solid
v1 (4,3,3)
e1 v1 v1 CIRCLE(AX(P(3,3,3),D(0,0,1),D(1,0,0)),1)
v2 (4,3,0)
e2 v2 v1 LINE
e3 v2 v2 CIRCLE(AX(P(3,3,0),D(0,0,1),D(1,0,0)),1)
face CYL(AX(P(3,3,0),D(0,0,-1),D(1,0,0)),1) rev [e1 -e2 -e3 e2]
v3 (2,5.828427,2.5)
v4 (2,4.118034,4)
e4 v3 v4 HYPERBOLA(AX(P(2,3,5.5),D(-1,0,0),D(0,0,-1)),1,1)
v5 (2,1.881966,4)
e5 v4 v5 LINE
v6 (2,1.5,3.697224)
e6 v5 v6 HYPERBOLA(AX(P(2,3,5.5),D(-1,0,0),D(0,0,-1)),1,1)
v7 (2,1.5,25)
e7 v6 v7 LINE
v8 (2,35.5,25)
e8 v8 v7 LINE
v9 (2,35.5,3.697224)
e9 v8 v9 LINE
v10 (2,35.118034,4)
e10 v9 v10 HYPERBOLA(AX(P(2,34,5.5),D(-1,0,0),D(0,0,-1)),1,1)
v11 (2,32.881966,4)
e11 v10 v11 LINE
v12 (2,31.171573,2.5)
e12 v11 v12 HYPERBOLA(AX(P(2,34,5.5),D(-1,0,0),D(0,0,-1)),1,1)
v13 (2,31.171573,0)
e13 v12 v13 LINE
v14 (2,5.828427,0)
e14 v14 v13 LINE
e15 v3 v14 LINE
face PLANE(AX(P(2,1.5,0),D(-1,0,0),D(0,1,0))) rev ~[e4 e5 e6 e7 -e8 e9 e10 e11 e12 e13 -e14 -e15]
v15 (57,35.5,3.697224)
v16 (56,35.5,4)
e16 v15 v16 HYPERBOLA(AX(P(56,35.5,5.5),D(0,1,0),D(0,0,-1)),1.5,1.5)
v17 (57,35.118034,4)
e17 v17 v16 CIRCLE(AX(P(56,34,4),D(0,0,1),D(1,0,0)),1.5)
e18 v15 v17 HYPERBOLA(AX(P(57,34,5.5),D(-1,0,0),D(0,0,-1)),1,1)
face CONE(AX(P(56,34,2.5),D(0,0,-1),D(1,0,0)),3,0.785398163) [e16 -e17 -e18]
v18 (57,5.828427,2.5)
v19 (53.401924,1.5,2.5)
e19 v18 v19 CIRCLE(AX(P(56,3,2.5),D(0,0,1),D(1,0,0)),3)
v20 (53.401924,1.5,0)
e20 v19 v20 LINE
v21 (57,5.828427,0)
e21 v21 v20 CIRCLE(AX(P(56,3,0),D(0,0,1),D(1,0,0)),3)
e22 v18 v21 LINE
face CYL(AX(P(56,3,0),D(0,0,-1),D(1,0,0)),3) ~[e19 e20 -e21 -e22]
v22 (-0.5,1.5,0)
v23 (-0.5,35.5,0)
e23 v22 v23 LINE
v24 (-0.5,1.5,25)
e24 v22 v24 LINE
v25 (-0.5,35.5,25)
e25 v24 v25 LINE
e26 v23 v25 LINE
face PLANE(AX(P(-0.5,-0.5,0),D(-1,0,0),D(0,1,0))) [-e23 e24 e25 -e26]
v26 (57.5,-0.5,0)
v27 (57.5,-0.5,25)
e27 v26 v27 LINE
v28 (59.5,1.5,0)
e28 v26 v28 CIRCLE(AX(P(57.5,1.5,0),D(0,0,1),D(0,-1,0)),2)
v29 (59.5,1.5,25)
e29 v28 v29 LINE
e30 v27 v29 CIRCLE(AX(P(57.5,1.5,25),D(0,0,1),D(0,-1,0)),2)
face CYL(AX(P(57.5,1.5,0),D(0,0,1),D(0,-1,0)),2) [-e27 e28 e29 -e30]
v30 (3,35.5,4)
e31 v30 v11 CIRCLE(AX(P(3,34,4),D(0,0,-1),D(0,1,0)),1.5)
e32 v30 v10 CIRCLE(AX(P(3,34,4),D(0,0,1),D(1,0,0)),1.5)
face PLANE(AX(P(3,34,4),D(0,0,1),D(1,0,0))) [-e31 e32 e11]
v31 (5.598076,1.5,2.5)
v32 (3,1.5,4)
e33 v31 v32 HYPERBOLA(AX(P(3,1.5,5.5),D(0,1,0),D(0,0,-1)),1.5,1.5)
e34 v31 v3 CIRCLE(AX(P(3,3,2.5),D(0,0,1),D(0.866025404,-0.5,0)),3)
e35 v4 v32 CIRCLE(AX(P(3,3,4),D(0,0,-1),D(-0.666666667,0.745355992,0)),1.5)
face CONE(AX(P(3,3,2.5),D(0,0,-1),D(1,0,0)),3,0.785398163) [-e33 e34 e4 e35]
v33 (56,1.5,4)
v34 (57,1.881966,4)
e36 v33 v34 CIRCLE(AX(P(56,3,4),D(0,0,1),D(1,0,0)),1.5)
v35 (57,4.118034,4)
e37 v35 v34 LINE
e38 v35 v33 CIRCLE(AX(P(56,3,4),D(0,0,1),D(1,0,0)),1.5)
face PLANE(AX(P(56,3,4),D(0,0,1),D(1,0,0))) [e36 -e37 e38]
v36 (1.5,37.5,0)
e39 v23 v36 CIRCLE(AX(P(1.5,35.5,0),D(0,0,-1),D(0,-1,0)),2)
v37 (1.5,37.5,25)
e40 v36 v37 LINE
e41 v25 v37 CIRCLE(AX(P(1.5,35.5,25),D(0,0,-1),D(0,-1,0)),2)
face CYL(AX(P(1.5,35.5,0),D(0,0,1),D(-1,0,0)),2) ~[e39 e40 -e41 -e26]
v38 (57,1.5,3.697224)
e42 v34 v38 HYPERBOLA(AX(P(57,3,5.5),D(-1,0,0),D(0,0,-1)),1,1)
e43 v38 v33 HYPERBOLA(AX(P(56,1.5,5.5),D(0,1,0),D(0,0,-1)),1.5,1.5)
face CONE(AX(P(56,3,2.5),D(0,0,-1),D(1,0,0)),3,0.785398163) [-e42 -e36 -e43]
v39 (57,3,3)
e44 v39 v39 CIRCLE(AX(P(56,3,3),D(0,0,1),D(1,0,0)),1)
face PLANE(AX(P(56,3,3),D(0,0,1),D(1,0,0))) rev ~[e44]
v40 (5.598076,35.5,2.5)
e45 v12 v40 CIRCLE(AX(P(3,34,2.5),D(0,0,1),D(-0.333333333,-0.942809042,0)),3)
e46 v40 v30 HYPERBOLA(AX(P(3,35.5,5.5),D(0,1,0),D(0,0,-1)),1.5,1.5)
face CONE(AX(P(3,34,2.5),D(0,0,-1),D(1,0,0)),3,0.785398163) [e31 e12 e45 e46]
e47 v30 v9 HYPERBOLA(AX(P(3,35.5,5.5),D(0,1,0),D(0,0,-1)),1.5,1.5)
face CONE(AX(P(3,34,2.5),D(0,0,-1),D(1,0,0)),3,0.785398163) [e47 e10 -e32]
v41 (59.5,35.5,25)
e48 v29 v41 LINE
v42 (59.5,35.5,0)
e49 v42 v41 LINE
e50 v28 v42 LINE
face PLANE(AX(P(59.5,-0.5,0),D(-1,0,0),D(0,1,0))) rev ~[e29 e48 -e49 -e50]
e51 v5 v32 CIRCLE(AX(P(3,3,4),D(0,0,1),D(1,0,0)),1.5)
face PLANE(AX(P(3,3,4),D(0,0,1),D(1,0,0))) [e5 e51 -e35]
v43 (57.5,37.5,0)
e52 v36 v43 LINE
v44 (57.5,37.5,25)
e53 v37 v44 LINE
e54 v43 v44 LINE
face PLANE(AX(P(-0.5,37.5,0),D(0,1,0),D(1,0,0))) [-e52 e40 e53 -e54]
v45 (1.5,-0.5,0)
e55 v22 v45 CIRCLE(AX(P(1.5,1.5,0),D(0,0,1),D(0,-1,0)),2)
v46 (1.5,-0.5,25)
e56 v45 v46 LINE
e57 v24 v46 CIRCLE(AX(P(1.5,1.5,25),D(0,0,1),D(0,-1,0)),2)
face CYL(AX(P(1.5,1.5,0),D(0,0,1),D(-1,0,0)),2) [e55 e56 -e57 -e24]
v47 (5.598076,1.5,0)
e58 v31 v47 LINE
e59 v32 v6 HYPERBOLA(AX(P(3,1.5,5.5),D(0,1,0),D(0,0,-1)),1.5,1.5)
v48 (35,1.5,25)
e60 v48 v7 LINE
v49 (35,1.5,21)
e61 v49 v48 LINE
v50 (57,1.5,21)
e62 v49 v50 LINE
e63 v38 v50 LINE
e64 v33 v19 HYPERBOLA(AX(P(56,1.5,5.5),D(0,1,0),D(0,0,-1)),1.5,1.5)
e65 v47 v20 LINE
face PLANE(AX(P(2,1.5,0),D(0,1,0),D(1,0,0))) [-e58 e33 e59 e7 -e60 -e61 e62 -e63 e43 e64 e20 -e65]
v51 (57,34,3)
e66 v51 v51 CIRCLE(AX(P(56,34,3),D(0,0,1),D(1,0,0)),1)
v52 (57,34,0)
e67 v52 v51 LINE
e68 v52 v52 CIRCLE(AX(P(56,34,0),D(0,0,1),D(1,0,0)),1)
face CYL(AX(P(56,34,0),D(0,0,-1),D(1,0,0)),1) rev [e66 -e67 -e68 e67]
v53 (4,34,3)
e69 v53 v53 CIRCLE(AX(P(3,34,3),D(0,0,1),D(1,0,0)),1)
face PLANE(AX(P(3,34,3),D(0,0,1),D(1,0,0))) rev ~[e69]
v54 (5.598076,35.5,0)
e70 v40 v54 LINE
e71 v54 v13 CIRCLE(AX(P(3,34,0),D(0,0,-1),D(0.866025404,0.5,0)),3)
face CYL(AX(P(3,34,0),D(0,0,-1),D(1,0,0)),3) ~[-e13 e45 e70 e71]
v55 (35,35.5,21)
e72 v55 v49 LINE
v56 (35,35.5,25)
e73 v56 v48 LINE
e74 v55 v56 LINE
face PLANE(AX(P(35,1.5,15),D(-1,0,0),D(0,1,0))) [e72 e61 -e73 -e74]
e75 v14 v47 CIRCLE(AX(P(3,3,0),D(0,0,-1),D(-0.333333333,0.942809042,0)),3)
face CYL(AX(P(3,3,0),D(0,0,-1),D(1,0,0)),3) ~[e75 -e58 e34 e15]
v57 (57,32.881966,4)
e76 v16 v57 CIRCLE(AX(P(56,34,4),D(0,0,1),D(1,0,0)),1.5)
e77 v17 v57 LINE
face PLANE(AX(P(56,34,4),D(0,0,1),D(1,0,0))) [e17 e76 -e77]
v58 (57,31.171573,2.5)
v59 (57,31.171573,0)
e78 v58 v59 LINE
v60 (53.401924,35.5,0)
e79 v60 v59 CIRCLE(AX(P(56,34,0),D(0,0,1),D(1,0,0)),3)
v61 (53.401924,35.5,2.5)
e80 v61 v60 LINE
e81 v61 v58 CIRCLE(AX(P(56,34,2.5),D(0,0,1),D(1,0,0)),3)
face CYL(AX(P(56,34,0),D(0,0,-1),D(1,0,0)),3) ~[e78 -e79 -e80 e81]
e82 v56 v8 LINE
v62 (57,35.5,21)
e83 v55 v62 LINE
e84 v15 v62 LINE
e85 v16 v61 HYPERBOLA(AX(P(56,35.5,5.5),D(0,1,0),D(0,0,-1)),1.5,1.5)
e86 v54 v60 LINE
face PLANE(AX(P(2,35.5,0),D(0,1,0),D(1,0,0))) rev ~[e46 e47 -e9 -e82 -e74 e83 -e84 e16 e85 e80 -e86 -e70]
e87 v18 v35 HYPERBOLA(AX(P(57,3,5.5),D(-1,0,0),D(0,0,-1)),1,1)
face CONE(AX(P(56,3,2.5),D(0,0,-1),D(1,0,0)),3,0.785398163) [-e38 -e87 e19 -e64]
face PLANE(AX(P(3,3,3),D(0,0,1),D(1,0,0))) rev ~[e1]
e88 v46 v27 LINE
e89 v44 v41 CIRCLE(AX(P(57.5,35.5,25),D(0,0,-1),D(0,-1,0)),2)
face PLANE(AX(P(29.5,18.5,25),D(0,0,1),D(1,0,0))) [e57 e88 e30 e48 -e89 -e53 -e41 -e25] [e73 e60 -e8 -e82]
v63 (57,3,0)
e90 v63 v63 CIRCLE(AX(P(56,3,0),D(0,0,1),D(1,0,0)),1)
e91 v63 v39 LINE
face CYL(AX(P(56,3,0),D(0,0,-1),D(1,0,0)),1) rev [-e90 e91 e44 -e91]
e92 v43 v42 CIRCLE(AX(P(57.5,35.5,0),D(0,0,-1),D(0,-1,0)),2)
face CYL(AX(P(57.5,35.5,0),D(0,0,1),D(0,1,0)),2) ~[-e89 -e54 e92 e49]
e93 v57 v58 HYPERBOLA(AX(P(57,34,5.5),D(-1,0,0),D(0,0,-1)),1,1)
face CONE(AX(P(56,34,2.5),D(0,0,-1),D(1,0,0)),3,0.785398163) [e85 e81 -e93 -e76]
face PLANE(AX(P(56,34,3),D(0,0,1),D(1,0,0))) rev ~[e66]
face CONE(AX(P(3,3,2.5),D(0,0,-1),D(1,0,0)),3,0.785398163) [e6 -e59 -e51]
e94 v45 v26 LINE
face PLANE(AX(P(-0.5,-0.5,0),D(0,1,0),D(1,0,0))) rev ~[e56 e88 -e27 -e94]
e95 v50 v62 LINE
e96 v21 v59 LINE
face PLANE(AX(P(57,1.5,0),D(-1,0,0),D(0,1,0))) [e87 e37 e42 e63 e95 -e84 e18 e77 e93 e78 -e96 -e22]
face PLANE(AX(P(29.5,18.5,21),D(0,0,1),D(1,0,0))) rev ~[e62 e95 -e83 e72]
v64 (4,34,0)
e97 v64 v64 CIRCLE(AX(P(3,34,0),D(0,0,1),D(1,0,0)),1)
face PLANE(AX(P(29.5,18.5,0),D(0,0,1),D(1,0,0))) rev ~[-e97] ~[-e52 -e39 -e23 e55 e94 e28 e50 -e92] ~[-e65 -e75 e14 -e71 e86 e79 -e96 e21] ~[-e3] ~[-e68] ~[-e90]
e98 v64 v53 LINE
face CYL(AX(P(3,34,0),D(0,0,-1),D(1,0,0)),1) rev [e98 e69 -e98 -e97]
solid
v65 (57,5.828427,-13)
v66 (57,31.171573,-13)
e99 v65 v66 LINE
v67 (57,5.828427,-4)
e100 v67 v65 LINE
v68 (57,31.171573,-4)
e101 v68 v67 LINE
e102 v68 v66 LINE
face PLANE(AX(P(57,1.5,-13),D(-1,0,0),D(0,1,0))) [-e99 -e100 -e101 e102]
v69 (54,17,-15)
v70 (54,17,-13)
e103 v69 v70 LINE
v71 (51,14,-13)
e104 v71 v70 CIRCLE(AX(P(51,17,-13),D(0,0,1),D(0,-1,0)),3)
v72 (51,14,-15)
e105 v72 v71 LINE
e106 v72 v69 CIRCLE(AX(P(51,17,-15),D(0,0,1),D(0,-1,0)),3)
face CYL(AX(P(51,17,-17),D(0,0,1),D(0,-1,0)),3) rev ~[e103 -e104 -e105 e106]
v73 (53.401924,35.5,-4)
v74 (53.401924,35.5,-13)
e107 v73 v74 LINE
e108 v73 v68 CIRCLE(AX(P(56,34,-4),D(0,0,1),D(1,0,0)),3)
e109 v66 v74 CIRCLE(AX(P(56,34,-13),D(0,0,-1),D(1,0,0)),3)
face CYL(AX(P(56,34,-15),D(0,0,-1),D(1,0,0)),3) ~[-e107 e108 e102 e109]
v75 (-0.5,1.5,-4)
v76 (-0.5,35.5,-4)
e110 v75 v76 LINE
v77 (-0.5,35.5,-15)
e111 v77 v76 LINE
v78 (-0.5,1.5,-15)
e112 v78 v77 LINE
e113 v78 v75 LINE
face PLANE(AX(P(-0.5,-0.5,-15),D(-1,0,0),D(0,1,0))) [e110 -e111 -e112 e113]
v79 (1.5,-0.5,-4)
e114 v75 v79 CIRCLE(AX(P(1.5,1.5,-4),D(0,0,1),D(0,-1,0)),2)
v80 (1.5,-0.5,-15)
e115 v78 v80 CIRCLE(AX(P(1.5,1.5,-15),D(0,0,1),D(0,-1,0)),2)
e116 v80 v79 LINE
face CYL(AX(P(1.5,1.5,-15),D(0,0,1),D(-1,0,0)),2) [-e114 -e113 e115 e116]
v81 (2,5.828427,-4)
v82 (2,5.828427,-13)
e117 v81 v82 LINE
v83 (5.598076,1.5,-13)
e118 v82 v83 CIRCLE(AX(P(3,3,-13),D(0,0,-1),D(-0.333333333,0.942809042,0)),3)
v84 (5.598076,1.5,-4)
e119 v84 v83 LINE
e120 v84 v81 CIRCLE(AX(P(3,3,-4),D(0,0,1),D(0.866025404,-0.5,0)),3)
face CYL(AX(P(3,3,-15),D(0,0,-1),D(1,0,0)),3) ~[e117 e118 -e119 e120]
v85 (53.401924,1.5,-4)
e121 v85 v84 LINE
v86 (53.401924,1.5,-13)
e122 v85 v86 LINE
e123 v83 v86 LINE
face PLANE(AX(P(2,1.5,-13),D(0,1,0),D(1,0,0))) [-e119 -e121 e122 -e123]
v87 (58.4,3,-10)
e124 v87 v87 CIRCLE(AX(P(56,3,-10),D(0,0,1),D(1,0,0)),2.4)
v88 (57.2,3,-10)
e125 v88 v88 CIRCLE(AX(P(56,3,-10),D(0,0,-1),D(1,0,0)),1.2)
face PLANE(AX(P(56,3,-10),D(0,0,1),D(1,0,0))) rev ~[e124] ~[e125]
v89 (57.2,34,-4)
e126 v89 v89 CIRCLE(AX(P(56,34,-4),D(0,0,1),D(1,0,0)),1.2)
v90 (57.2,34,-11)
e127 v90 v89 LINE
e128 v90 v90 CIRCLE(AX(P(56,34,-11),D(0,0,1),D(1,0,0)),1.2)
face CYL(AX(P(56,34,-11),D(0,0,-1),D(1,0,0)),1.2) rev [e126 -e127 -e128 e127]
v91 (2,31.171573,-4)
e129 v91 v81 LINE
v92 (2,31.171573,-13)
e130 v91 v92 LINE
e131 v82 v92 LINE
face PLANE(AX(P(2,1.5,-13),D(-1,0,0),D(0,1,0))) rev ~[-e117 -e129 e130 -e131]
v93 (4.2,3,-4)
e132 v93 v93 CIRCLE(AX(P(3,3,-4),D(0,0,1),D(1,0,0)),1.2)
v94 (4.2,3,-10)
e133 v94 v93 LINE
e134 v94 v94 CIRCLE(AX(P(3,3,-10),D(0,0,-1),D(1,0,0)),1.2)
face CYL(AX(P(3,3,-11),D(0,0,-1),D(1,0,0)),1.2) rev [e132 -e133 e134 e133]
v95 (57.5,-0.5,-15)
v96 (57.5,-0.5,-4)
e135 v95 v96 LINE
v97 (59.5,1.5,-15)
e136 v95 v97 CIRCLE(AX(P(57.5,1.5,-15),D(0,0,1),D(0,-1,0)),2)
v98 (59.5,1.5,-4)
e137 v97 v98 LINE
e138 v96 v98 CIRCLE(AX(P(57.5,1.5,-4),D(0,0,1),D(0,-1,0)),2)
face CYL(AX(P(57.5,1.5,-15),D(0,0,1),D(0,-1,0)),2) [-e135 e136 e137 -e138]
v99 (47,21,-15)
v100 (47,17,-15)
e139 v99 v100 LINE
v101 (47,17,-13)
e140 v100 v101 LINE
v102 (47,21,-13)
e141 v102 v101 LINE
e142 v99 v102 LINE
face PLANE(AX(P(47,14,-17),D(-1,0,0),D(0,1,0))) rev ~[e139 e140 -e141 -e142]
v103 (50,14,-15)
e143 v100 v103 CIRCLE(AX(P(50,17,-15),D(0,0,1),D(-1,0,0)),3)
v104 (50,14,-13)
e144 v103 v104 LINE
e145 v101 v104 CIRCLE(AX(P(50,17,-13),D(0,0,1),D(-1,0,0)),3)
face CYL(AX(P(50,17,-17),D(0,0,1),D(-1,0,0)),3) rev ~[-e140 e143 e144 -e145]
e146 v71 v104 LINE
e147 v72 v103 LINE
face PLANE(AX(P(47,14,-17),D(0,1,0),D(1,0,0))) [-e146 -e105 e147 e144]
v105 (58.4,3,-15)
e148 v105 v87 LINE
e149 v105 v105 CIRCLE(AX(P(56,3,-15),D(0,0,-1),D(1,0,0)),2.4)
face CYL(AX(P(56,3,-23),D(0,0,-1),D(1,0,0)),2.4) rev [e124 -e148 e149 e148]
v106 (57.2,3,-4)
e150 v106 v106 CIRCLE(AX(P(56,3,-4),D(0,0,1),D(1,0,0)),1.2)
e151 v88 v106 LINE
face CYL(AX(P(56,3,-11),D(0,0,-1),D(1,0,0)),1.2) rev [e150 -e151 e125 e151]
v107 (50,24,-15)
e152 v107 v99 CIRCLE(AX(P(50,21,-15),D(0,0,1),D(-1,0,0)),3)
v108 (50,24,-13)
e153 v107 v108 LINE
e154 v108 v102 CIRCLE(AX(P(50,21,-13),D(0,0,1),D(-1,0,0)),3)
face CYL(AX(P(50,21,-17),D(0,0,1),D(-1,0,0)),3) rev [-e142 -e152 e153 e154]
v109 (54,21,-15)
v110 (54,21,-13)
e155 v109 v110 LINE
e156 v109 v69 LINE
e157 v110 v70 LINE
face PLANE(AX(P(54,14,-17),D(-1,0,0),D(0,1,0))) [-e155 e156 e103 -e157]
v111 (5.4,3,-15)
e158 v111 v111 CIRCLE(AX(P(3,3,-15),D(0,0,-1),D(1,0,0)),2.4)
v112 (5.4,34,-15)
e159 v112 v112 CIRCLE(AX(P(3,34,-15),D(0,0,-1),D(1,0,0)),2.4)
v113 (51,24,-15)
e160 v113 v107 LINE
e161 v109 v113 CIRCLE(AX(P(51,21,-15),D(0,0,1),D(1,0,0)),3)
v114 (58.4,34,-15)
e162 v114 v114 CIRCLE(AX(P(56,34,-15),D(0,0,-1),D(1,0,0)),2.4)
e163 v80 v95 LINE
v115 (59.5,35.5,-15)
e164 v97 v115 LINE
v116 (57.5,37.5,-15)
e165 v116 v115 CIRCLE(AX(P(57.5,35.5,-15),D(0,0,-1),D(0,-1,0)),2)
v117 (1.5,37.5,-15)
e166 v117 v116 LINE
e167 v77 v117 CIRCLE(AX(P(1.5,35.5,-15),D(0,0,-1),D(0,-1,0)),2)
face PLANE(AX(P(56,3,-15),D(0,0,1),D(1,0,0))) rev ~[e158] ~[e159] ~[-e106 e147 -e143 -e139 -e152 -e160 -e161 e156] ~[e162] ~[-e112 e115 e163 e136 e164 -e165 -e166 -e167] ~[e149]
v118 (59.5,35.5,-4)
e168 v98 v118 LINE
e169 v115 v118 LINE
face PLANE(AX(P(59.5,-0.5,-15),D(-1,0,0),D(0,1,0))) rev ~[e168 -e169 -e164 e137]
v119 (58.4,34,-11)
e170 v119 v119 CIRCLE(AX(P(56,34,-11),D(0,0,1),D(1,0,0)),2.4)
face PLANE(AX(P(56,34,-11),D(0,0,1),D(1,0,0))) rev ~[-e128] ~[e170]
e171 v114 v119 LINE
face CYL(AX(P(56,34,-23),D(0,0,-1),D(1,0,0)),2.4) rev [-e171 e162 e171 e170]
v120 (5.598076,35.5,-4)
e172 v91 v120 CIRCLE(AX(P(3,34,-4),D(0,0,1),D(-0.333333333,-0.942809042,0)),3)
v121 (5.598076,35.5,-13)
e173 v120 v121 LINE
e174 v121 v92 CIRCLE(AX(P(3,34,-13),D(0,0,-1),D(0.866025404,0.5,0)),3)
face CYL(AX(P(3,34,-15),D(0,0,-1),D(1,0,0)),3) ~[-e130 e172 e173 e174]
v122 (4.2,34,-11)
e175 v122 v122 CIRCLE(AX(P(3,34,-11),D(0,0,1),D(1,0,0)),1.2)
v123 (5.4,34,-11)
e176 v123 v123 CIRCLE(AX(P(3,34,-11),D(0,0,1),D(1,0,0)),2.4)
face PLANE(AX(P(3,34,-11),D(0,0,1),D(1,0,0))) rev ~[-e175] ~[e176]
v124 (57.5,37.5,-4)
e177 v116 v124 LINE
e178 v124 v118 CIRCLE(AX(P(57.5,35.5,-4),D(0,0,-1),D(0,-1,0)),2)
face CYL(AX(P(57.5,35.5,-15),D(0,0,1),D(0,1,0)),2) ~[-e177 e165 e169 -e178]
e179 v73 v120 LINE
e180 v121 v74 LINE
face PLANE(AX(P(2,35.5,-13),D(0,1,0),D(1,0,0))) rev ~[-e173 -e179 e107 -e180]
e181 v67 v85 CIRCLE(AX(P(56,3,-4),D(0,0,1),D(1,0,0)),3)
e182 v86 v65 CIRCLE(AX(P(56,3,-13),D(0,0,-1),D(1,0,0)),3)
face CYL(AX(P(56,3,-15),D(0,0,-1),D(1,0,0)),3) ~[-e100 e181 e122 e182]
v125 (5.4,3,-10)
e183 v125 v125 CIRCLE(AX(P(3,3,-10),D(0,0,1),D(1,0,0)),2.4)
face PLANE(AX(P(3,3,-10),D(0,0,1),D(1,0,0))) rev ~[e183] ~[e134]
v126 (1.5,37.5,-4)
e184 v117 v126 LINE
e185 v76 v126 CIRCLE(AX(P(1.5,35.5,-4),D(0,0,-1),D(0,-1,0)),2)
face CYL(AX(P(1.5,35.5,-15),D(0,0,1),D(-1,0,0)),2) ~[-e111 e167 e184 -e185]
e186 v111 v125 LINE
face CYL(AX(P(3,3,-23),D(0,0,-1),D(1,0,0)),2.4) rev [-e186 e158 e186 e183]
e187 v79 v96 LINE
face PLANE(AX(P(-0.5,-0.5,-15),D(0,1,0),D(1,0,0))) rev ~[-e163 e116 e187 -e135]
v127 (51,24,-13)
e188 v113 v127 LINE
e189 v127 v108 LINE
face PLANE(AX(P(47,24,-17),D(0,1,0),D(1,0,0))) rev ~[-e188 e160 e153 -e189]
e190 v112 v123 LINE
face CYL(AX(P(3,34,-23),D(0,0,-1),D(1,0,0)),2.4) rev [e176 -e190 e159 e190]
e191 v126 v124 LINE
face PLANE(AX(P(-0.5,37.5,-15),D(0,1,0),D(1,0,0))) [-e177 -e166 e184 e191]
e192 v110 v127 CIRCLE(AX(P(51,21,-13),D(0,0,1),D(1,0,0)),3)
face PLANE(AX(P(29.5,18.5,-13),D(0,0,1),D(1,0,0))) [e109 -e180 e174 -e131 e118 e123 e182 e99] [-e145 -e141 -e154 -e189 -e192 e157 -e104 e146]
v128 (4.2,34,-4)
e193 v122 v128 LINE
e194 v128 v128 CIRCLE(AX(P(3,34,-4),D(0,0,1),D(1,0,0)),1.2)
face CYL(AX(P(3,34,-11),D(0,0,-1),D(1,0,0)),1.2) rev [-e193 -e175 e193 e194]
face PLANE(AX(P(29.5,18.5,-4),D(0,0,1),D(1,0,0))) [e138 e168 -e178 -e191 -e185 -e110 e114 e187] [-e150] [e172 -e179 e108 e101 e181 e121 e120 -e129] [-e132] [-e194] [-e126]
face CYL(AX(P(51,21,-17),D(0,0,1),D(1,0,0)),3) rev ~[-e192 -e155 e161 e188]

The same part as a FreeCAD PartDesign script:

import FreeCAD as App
import Part
import Sketcher

V = App.Vector


def edges_at(feature, points):
    """Names of the edges that pass closest to the given points."""
    edges = feature.Shape.Edges
    near = lambda p: min(range(len(edges)), key=lambda i: edges[i].distToShape(Part.Vertex(*p))[0])
    return sorted({f"Edge{near(p) + 1}" for p in points})

doc = App.newDocument("Part")
body = doc.addObject("PartDesign::Body", "Body")

# Sketch on XY plane
sketch1 = body.newObject("Sketcher::SketchObject", "Sketch")
sketch1.AttachmentSupport = (doc.getObject("XY_Plane"), [""])
sketch1.MapMode = "FlatFace"
sketch1.AttachmentOffset = App.Placement(V(0, 0, -17), App.Rotation())
sketch1.addGeometry(Part.LineSegment(V(45, 20, 0), V(45, 10, 0)), False)
sketch1.addGeometry(Part.LineSegment(V(45, 10, 0), V(52, 10, 0)), False)
sketch1.addGeometry(Part.LineSegment(V(52, 10, 0), V(52, 20, 0)), False)
sketch1.addGeometry(Part.LineSegment(V(52, 20, 0), V(45, 20, 0)), False)
sketch1.addConstraint(Sketcher.Constraint("Coincident", 0, 2, 1, 1))
sketch1.addConstraint(Sketcher.Constraint("Coincident", 1, 2, 2, 1))
sketch1.addConstraint(Sketcher.Constraint("Coincident", 2, 2, 3, 1))
sketch1.addConstraint(Sketcher.Constraint("Coincident", 3, 2, 0, 1))
sketch1.addConstraint(Sketcher.Constraint("Vertical", 0))
sketch1.addConstraint(Sketcher.Constraint("Horizontal", 1))
sketch1.addConstraint(Sketcher.Constraint("Vertical", 2))
sketch1.addConstraint(Sketcher.Constraint("Horizontal", 3))
sketch1.addConstraint(Sketcher.Constraint("DistanceX", 1, 1, 1, 2, 7.0))
sketch1.addConstraint(Sketcher.Constraint("DistanceY", 0, 2, 0, 1, 10.0))
sketch1.addConstraint(Sketcher.Constraint("DistanceX", -1, 1, 0, 2, 45.0))
sketch1.addConstraint(Sketcher.Constraint("DistanceY", -1, 1, 0, 2, 10.0))
pad1 = body.newObject("PartDesign::Pad", "Pad")
pad1.Profile = sketch1
pad1.Length = 6
doc.recompute()

fillet = body.newObject("PartDesign::Fillet", "Fillet")
fillet.Base = (pad1, edges_at(pad1, [
    (45, 10, -14),
    (45, 20, -14),
    (52, 10, -14),
    (52, 20, -14),
]))
fillet.Radius = 3
body2 = doc.addObject("PartDesign::Body", "Body001")
doc.recompute()

body.Placement = App.Placement(V(2, 4, 0), App.Rotation(V(0, 0, 1), 0))
boolean = body2.newObject("PartDesign::Boolean", "Boolean")
boolean.Type = "Fuse"
boolean.addObjects([body])
body3 = doc.addObject("PartDesign::Body", "Body002")

# Sketch on XY plane
sketch2 = body3.newObject("Sketcher::SketchObject", "Sketch001")
sketch2.AttachmentSupport = (doc.getObject("XY_Plane002"), [""])
sketch2.MapMode = "FlatFace"
sketch2.AttachmentOffset = App.Placement(V(0, 0, -3), App.Rotation())
sketch2.addGeometry(Part.Circle(V(3, 3, 0), V(0, 0, 1), 1.2), False)
sketch2.addConstraint(Sketcher.Constraint("Diameter", 0, 2.4))
sketch2.addConstraint(Sketcher.Constraint("DistanceX", -1, 1, 0, 3, 3.0))
sketch2.addConstraint(Sketcher.Constraint("DistanceY", -1, 1, 0, 3, 3.0))
pad2 = body3.newObject("PartDesign::Pad", "Pad001")
pad2.Profile = sketch2
pad2.Length = 7
body4 = doc.addObject("PartDesign::Body", "Body003")

# Sketch on XY plane
sketch3 = body4.newObject("Sketcher::SketchObject", "Sketch002")
sketch3.AttachmentSupport = (doc.getObject("XY_Plane003"), [""])
sketch3.MapMode = "FlatFace"
sketch3.AttachmentOffset = App.Placement(V(0, 0, -15), App.Rotation())
sketch3.addGeometry(Part.Circle(V(3, 3, 0), V(0, 0, 1), 2.4), False)
sketch3.addConstraint(Sketcher.Constraint("Diameter", 0, 4.8))
sketch3.addConstraint(Sketcher.Constraint("DistanceX", -1, 1, 0, 3, 3.0))
sketch3.addConstraint(Sketcher.Constraint("DistanceY", -1, 1, 0, 3, 3.0))
pad3 = body4.newObject("PartDesign::Pad", "Pad002")
pad3.Profile = sketch3
pad3.Length = 12
doc.recompute()

boolean2 = body4.newObject("PartDesign::Boolean", "Boolean001")
boolean2.Type = "Fuse"
boolean2.addObjects([body3])
body5 = doc.addObject("PartDesign::Body", "Body004")
doc.recompute()

body4.Placement = App.Placement(V(53, 31, -4), App.Rotation(V(0, 0, 1), 0))
boolean3 = body5.newObject("PartDesign::Boolean", "Boolean002")
boolean3.Type = "Fuse"
boolean3.addObjects([body4])
body6 = doc.addObject("PartDesign::Body", "Body005")

# Sketch on XY plane
sketch4 = body6.newObject("Sketcher::SketchObject", "Sketch003")
sketch4.AttachmentSupport = (doc.getObject("XY_Plane005"), [""])
sketch4.MapMode = "FlatFace"
sketch4.AttachmentOffset = App.Placement(V(0, 0, -3), App.Rotation())
sketch4.addGeometry(Part.Circle(V(3, 3, 0), V(0, 0, 1), 1.2), False)
sketch4.addConstraint(Sketcher.Constraint("Diameter", 0, 2.4))
sketch4.addConstraint(Sketcher.Constraint("DistanceX", -1, 1, 0, 3, 3.0))
sketch4.addConstraint(Sketcher.Constraint("DistanceY", -1, 1, 0, 3, 3.0))
pad4 = body6.newObject("PartDesign::Pad", "Pad003")
pad4.Profile = sketch4
pad4.Length = 7
body7 = doc.addObject("PartDesign::Body", "Body006")

# Sketch on XY plane
sketch5 = body7.newObject("Sketcher::SketchObject", "Sketch004")
sketch5.AttachmentSupport = (doc.getObject("XY_Plane006"), [""])
sketch5.MapMode = "FlatFace"
sketch5.AttachmentOffset = App.Placement(V(0, 0, -15), App.Rotation())
sketch5.addGeometry(Part.Circle(V(3, 3, 0), V(0, 0, 1), 2.4), False)
sketch5.addConstraint(Sketcher.Constraint("Diameter", 0, 4.8))
sketch5.addConstraint(Sketcher.Constraint("DistanceX", -1, 1, 0, 3, 3.0))
sketch5.addConstraint(Sketcher.Constraint("DistanceY", -1, 1, 0, 3, 3.0))
pad5 = body7.newObject("PartDesign::Pad", "Pad004")
pad5.Profile = sketch5
pad5.Length = 13
doc.recompute()

boolean4 = body7.newObject("PartDesign::Boolean", "Boolean003")
boolean4.Type = "Fuse"
boolean4.addObjects([body6])
body8 = doc.addObject("PartDesign::Body", "Body007")
doc.recompute()

body7.Placement = App.Placement(V(53, 0, -4), App.Rotation(V(0, 0, 1), 0))
boolean5 = body8.newObject("PartDesign::Boolean", "Boolean004")
boolean5.Type = "Fuse"
boolean5.addObjects([body7])
body9 = doc.addObject("PartDesign::Body", "Body008")

# Sketch on XY plane
sketch6 = body9.newObject("Sketcher::SketchObject", "Sketch005")
sketch6.AttachmentSupport = (doc.getObject("XY_Plane008"), [""])
sketch6.MapMode = "FlatFace"
sketch6.AttachmentOffset = App.Placement(V(0, 0, -3), App.Rotation())
sketch6.addGeometry(Part.Circle(V(3, 3, 0), V(0, 0, 1), 1.2), False)
sketch6.addConstraint(Sketcher.Constraint("Diameter", 0, 2.4))
sketch6.addConstraint(Sketcher.Constraint("DistanceX", -1, 1, 0, 3, 3.0))
sketch6.addConstraint(Sketcher.Constraint("DistanceY", -1, 1, 0, 3, 3.0))
pad6 = body9.newObject("PartDesign::Pad", "Pad005")
pad6.Profile = sketch6
pad6.Length = 7
body10 = doc.addObject("PartDesign::Body", "Body009")

# Sketch on XY plane
sketch7 = body10.newObject("Sketcher::SketchObject", "Sketch006")
sketch7.AttachmentSupport = (doc.getObject("XY_Plane009"), [""])
sketch7.MapMode = "FlatFace"
sketch7.AttachmentOffset = App.Placement(V(0, 0, -15), App.Rotation())
sketch7.addGeometry(Part.Circle(V(3, 3, 0), V(0, 0, 1), 2.4), False)
sketch7.addConstraint(Sketcher.Constraint("Diameter", 0, 4.8))
sketch7.addConstraint(Sketcher.Constraint("DistanceX", -1, 1, 0, 3, 3.0))
sketch7.addConstraint(Sketcher.Constraint("DistanceY", -1, 1, 0, 3, 3.0))
pad7 = body10.newObject("PartDesign::Pad", "Pad006")
pad7.Profile = sketch7
pad7.Length = 13
doc.recompute()

boolean6 = body10.newObject("PartDesign::Boolean", "Boolean005")
boolean6.Type = "Fuse"
boolean6.addObjects([body9])
body11 = doc.addObject("PartDesign::Body", "Body010")
doc.recompute()

body10.Placement = App.Placement(V(0, 0, -4), App.Rotation(V(0, 0, 1), 0))
boolean7 = body11.newObject("PartDesign::Boolean", "Boolean006")
boolean7.Type = "Fuse"
boolean7.addObjects([body10])
body12 = doc.addObject("PartDesign::Body", "Body011")

# Sketch on XY plane
sketch8 = body12.newObject("Sketcher::SketchObject", "Sketch007")
sketch8.AttachmentSupport = (doc.getObject("XY_Plane011"), [""])
sketch8.MapMode = "FlatFace"
sketch8.AttachmentOffset = App.Placement(V(0, 0, -3), App.Rotation())
sketch8.addGeometry(Part.Circle(V(3, 3, 0), V(0, 0, 1), 1.2), False)
sketch8.addConstraint(Sketcher.Constraint("Diameter", 0, 2.4))
sketch8.addConstraint(Sketcher.Constraint("DistanceX", -1, 1, 0, 3, 3.0))
sketch8.addConstraint(Sketcher.Constraint("DistanceY", -1, 1, 0, 3, 3.0))
pad8 = body12.newObject("PartDesign::Pad", "Pad007")
pad8.Profile = sketch8
pad8.Length = 7
body13 = doc.addObject("PartDesign::Body", "Body012")

# Sketch on XY plane
sketch9 = body13.newObject("Sketcher::SketchObject", "Sketch008")
sketch9.AttachmentSupport = (doc.getObject("XY_Plane012"), [""])
sketch9.MapMode = "FlatFace"
sketch9.AttachmentOffset = App.Placement(V(0, 0, -15), App.Rotation())
sketch9.addGeometry(Part.Circle(V(3, 3, 0), V(0, 0, 1), 2.4), False)
sketch9.addConstraint(Sketcher.Constraint("Diameter", 0, 4.8))
sketch9.addConstraint(Sketcher.Constraint("DistanceX", -1, 1, 0, 3, 3.0))
sketch9.addConstraint(Sketcher.Constraint("DistanceY", -1, 1, 0, 3, 3.0))
pad9 = body13.newObject("PartDesign::Pad", "Pad008")
pad9.Profile = sketch9
pad9.Length = 12
doc.recompute()

boolean8 = body13.newObject("PartDesign::Boolean", "Boolean007")
boolean8.Type = "Fuse"
boolean8.addObjects([body12])
body14 = doc.addObject("PartDesign::Body", "Body013")
body14.AllowCompound = True
doc.recompute()

body13.Placement = App.Placement(V(0, 31, -4), App.Rotation(V(0, 0, 1), 0))
boolean9 = body14.newObject("PartDesign::Boolean", "Boolean008")
boolean9.Type = "Fuse"
boolean9.addObjects([body13])
doc.recompute()

boolean10 = body14.newObject("PartDesign::Boolean", "Boolean009")
boolean10.Type = "Fuse"
boolean10.addObjects([body5])
doc.recompute()

boolean11 = body14.newObject("PartDesign::Boolean", "Boolean010")
boolean11.Type = "Fuse"
boolean11.addObjects([body8])
doc.recompute()

boolean12 = body14.newObject("PartDesign::Boolean", "Boolean011")
boolean12.Type = "Fuse"
boolean12.addObjects([body11])
body15 = doc.addObject("PartDesign::Body", "Body014")
body15.AllowCompound = True
doc.recompute()

body14.Placement = App.Placement(V(0, 0, -4), App.Rotation(V(0, 0, 1), 0))
boolean13 = body15.newObject("PartDesign::Boolean", "Boolean012")
boolean13.Type = "Fuse"
boolean13.addObjects([body14])
body16 = doc.addObject("PartDesign::Body", "Body015")

# Sketch on XY plane
sketch10 = body16.newObject("Sketcher::SketchObject", "Sketch009")
sketch10.AttachmentSupport = (doc.getObject("XY_Plane015"), [""])
sketch10.MapMode = "FlatFace"
sketch10.AttachmentOffset = App.Placement(V(0, 0, -15), App.Rotation())
sketch10.addGeometry(Part.Circle(V(3, 3, 0), V(0, 0, 1), 3), False)
sketch10.addConstraint(Sketcher.Constraint("Diameter", 0, 6.0))
sketch10.addConstraint(Sketcher.Constraint("DistanceX", -1, 1, 0, 3, 3.0))
sketch10.addConstraint(Sketcher.Constraint("DistanceY", -1, 1, 0, 3, 3.0))
pad10 = body16.newObject("PartDesign::Pad", "Pad009")
pad10.Profile = sketch10
pad10.Length = 11
body17 = doc.addObject("PartDesign::Body", "Body016")

# Sketch on XY plane
sketch11 = body17.newObject("Sketcher::SketchObject", "Sketch010")
sketch11.AttachmentSupport = (doc.getObject("XY_Plane016"), [""])
sketch11.MapMode = "FlatFace"
sketch11.AttachmentOffset = App.Placement(V(0, 0, -15), App.Rotation())
sketch11.addGeometry(Part.Circle(V(56, 34, 0), V(0, 0, 1), 3), False)
sketch11.addConstraint(Sketcher.Constraint("Diameter", 0, 6.0))
sketch11.addConstraint(Sketcher.Constraint("DistanceX", -1, 1, 0, 3, 56.0))
sketch11.addConstraint(Sketcher.Constraint("DistanceY", -1, 1, 0, 3, 34.0))
pad11 = body17.newObject("PartDesign::Pad", "Pad010")
pad11.Profile = sketch11
pad11.Length = 11
body18 = doc.addObject("PartDesign::Body", "Body017")

# Sketch on XY plane
sketch12 = body18.newObject("Sketcher::SketchObject", "Sketch011")
sketch12.AttachmentSupport = (doc.getObject("XY_Plane017"), [""])
sketch12.MapMode = "FlatFace"
sketch12.AttachmentOffset = App.Placement(V(0, 0, -15), App.Rotation())
sketch12.addGeometry(Part.Circle(V(56, 3, 0), V(0, 0, 1), 3), False)
sketch12.addConstraint(Sketcher.Constraint("Diameter", 0, 6.0))
sketch12.addConstraint(Sketcher.Constraint("DistanceX", -1, 1, 0, 3, 56.0))
sketch12.addConstraint(Sketcher.Constraint("DistanceY", -1, 1, 0, 3, 3.0))
pad12 = body18.newObject("PartDesign::Pad", "Pad011")
pad12.Profile = sketch12
pad12.Length = 11
body19 = doc.addObject("PartDesign::Body", "Body018")
body19.AllowCompound = True

# Sketch on XY plane
sketch13 = body19.newObject("Sketcher::SketchObject", "Sketch012")
sketch13.AttachmentSupport = (doc.getObject("XY_Plane018"), [""])
sketch13.MapMode = "FlatFace"
sketch13.AttachmentOffset = App.Placement(V(0, 0, -15), App.Rotation())
sketch13.addGeometry(Part.Circle(V(3, 34, 0), V(0, 0, 1), 3), False)
sketch13.addConstraint(Sketcher.Constraint("Diameter", 0, 6.0))
sketch13.addConstraint(Sketcher.Constraint("DistanceX", -1, 1, 0, 3, 3.0))
sketch13.addConstraint(Sketcher.Constraint("DistanceY", -1, 1, 0, 3, 34.0))
pad13 = body19.newObject("PartDesign::Pad", "Pad012")
pad13.Profile = sketch13
pad13.Length = 11
doc.recompute()

boolean14 = body19.newObject("PartDesign::Boolean", "Boolean013")
boolean14.Type = "Fuse"
boolean14.addObjects([body16])
doc.recompute()

boolean15 = body19.newObject("PartDesign::Boolean", "Boolean014")
boolean15.Type = "Fuse"
boolean15.addObjects([body17])
doc.recompute()

boolean16 = body19.newObject("PartDesign::Boolean", "Boolean015")
boolean16.Type = "Fuse"
boolean16.addObjects([body18])
body20 = doc.addObject("PartDesign::Body", "Body019")

# Sketch on XY plane
sketch14 = body20.newObject("Sketcher::SketchObject", "Sketch013")
sketch14.AttachmentSupport = (doc.getObject("XY_Plane019"), [""])
sketch14.MapMode = "FlatFace"
sketch14.AttachmentOffset = App.Placement(V(0, 0, -13), App.Rotation())
sketch14.addGeometry(Part.LineSegment(V(2, 36, 0), V(2, 2, 0)), False)
sketch14.addGeometry(Part.LineSegment(V(2, 2, 0), V(57, 2, 0)), False)
sketch14.addGeometry(Part.LineSegment(V(57, 2, 0), V(57, 36, 0)), False)
sketch14.addGeometry(Part.LineSegment(V(57, 36, 0), V(2, 36, 0)), False)
sketch14.addConstraint(Sketcher.Constraint("Coincident", 0, 2, 1, 1))
sketch14.addConstraint(Sketcher.Constraint("Coincident", 1, 2, 2, 1))
sketch14.addConstraint(Sketcher.Constraint("Coincident", 2, 2, 3, 1))
sketch14.addConstraint(Sketcher.Constraint("Coincident", 3, 2, 0, 1))
sketch14.addConstraint(Sketcher.Constraint("Vertical", 0))
sketch14.addConstraint(Sketcher.Constraint("Horizontal", 1))
sketch14.addConstraint(Sketcher.Constraint("Vertical", 2))
sketch14.addConstraint(Sketcher.Constraint("Horizontal", 3))
sketch14.addConstraint(Sketcher.Constraint("DistanceX", 1, 1, 1, 2, 55.0))
sketch14.addConstraint(Sketcher.Constraint("DistanceY", 0, 2, 0, 1, 34.0))
sketch14.addConstraint(Sketcher.Constraint("DistanceX", -1, 1, 0, 2, 2.0))
sketch14.addConstraint(Sketcher.Constraint("DistanceY", -1, 1, 0, 2, 1.5))
pad14 = body20.newObject("PartDesign::Pad", "Pad013")
pad14.Profile = sketch14
pad14.Length = 11
body21 = doc.addObject("PartDesign::Body", "Body020")

# Sketch on XY plane
sketch15 = body21.newObject("Sketcher::SketchObject", "Sketch014")
sketch15.AttachmentSupport = (doc.getObject("XY_Plane020"), [""])
sketch15.MapMode = "FlatFace"
sketch15.AttachmentOffset = App.Placement(V(0, 0, -15), App.Rotation())
sketch15.addGeometry(Part.LineSegment(V(0, 38, 0), V(0, 0, 0)), False)
sketch15.addGeometry(Part.LineSegment(V(0, 0, 0), V(60, 0, 0)), False)
sketch15.addGeometry(Part.LineSegment(V(60, 0, 0), V(60, 38, 0)), False)
sketch15.addGeometry(Part.LineSegment(V(60, 38, 0), V(0, 38, 0)), False)
sketch15.addConstraint(Sketcher.Constraint("Coincident", 0, 2, 1, 1))
sketch15.addConstraint(Sketcher.Constraint("Coincident", 1, 2, 2, 1))
sketch15.addConstraint(Sketcher.Constraint("Coincident", 2, 2, 3, 1))
sketch15.addConstraint(Sketcher.Constraint("Coincident", 3, 2, 0, 1))
sketch15.addConstraint(Sketcher.Constraint("Vertical", 0))
sketch15.addConstraint(Sketcher.Constraint("Horizontal", 1))
sketch15.addConstraint(Sketcher.Constraint("Vertical", 2))
sketch15.addConstraint(Sketcher.Constraint("Horizontal", 3))
sketch15.addConstraint(Sketcher.Constraint("DistanceX", 1, 1, 1, 2, 60.0))
sketch15.addConstraint(Sketcher.Constraint("DistanceY", 0, 2, 0, 1, 38.0))
sketch15.addConstraint(Sketcher.Constraint("DistanceX", 0, 2, -1, 1, 0.5))
sketch15.addConstraint(Sketcher.Constraint("DistanceY", 0, 2, -1, 1, 0.5))
pad15 = body21.newObject("PartDesign::Pad", "Pad014")
pad15.Profile = sketch15
pad15.Length = 11
doc.recompute()

boolean17 = body21.newObject("PartDesign::Boolean", "Boolean016")
boolean17.Type = "Cut"
boolean17.addObjects([body20])
doc.recompute()

fillet2 = body21.newObject("PartDesign::Fillet", "Fillet001")
fillet2.Base = (boolean17, edges_at(boolean17, [
    (-0.5, -0.5, -9.5),
    (-0.5, 37.5, -9.5),
    (59.5, -0.5, -9.5),
    (59.5, 37.5, -9.5),
]))
fillet2.Radius = 2
doc.recompute()

boolean18 = body21.newObject("PartDesign::Boolean", "Boolean017")
boolean18.Type = "Fuse"
boolean18.addObjects([body19])
doc.recompute()

boolean19 = body21.newObject("PartDesign::Boolean", "Boolean018")
boolean19.Type = "Cut"
boolean19.addObjects([body15])
doc.recompute()

boolean20 = body21.newObject("PartDesign::Boolean", "Boolean019")
boolean20.Type = "Cut"
boolean20.addObjects([body2])
body22 = doc.addObject("PartDesign::Body", "Body021")

# Sketch on XY plane
sketch16 = body22.newObject("Sketcher::SketchObject", "Sketch015")
sketch16.AttachmentSupport = (doc.getObject("XY_Plane021"), [""])
sketch16.MapMode = "FlatFace"
sketch16.addGeometry(Part.Circle(V(56, 34, 0), V(0, 0, 1), 1), False)
sketch16.addConstraint(Sketcher.Constraint("Diameter", 0, 2.0))
sketch16.addConstraint(Sketcher.Constraint("DistanceX", -1, 1, 0, 3, 56.0))
sketch16.addConstraint(Sketcher.Constraint("DistanceY", -1, 1, 0, 3, 34.0))
pad16 = body22.newObject("PartDesign::Pad", "Pad015")
pad16.Profile = sketch16
pad16.Length = 3
body23 = doc.addObject("PartDesign::Body", "Body022")

# Sketch on XY plane
sketch17 = body23.newObject("Sketcher::SketchObject", "Sketch016")
sketch17.AttachmentSupport = (doc.getObject("XY_Plane022"), [""])
sketch17.MapMode = "FlatFace"
sketch17.addGeometry(Part.Circle(V(3, 34, 0), V(0, 0, 1), 1), False)
sketch17.addConstraint(Sketcher.Constraint("Diameter", 0, 2.0))
sketch17.addConstraint(Sketcher.Constraint("DistanceX", -1, 1, 0, 3, 3.0))
sketch17.addConstraint(Sketcher.Constraint("DistanceY", -1, 1, 0, 3, 34.0))
pad17 = body23.newObject("PartDesign::Pad", "Pad016")
pad17.Profile = sketch17
pad17.Length = 3
body24 = doc.addObject("PartDesign::Body", "Body023")

# Sketch on XY plane
sketch18 = body24.newObject("Sketcher::SketchObject", "Sketch017")
sketch18.AttachmentSupport = (doc.getObject("XY_Plane023"), [""])
sketch18.MapMode = "FlatFace"
sketch18.addGeometry(Part.Circle(V(56, 3, 0), V(0, 0, 1), 1), False)
sketch18.addConstraint(Sketcher.Constraint("Diameter", 0, 2.0))
sketch18.addConstraint(Sketcher.Constraint("DistanceX", -1, 1, 0, 3, 56.0))
sketch18.addConstraint(Sketcher.Constraint("DistanceY", -1, 1, 0, 3, 3.0))
pad18 = body24.newObject("PartDesign::Pad", "Pad017")
pad18.Profile = sketch18
pad18.Length = 3
body25 = doc.addObject("PartDesign::Body", "Body024")
body25.AllowCompound = True

# Sketch on XY plane
sketch19 = body25.newObject("Sketcher::SketchObject", "Sketch018")
sketch19.AttachmentSupport = (doc.getObject("XY_Plane024"), [""])
sketch19.MapMode = "FlatFace"
sketch19.addGeometry(Part.Circle(V(3, 3, 0), V(0, 0, 1), 1), False)
sketch19.addConstraint(Sketcher.Constraint("Diameter", 0, 2.0))
sketch19.addConstraint(Sketcher.Constraint("DistanceX", -1, 1, 0, 3, 3.0))
sketch19.addConstraint(Sketcher.Constraint("DistanceY", -1, 1, 0, 3, 3.0))
pad19 = body25.newObject("PartDesign::Pad", "Pad018")
pad19.Profile = sketch19
pad19.Length = 3
doc.recompute()

boolean21 = body25.newObject("PartDesign::Boolean", "Boolean020")
boolean21.Type = "Fuse"
boolean21.addObjects([body22])
doc.recompute()

boolean22 = body25.newObject("PartDesign::Boolean", "Boolean021")
boolean22.Type = "Fuse"
boolean22.addObjects([body23])
doc.recompute()

boolean23 = body25.newObject("PartDesign::Boolean", "Boolean022")
boolean23.Type = "Fuse"
boolean23.addObjects([body24])
body26 = doc.addObject("PartDesign::Body", "Body025")

# Sketch on XY plane
sketch20 = body26.newObject("Sketcher::SketchObject", "Sketch019")
sketch20.AttachmentSupport = (doc.getObject("XY_Plane025"), [""])
sketch20.MapMode = "FlatFace"
sketch20.AttachmentOffset = App.Placement(V(0, 0, -15), App.Rotation())
sketch20.addGeometry(Part.Circle(V(3, 3, 0), V(0, 0, 1), 3), False)
sketch20.addConstraint(Sketcher.Constraint("Diameter", 0, 6.0))
sketch20.addConstraint(Sketcher.Constraint("DistanceX", -1, 1, 0, 3, 3.0))
sketch20.addConstraint(Sketcher.Constraint("DistanceY", -1, 1, 0, 3, 3.0))
pad20 = body26.newObject("PartDesign::Pad", "Pad019")
pad20.Profile = sketch20
pad20.Length = 4
doc.recompute()

chamfer = body26.newObject("PartDesign::Chamfer", "Chamfer")
chamfer.Base = (pad20, edges_at(pad20, [(0, 3, -11)]))
chamfer.Size = 1.5
body27 = doc.addObject("PartDesign::Body", "Body026")
doc.recompute()

body26.Placement = App.Placement(V(53, 0, 15), App.Rotation(V(0, 0, 1), 0))
boolean24 = body27.newObject("PartDesign::Boolean", "Boolean023")
boolean24.Type = "Fuse"
boolean24.addObjects([body26])
body28 = doc.addObject("PartDesign::Body", "Body027")

# Sketch on XY plane
sketch21 = body28.newObject("Sketcher::SketchObject", "Sketch020")
sketch21.AttachmentSupport = (doc.getObject("XY_Plane027"), [""])
sketch21.MapMode = "FlatFace"
sketch21.AttachmentOffset = App.Placement(V(0, 0, -15), App.Rotation())
sketch21.addGeometry(Part.Circle(V(3, 3, 0), V(0, 0, 1), 3), False)
sketch21.addConstraint(Sketcher.Constraint("Diameter", 0, 6.0))
sketch21.addConstraint(Sketcher.Constraint("DistanceX", -1, 1, 0, 3, 3.0))
sketch21.addConstraint(Sketcher.Constraint("DistanceY", -1, 1, 0, 3, 3.0))
pad21 = body28.newObject("PartDesign::Pad", "Pad020")
pad21.Profile = sketch21
pad21.Length = 4
doc.recompute()

chamfer2 = body28.newObject("PartDesign::Chamfer", "Chamfer001")
chamfer2.Base = (pad21, edges_at(pad21, [(0, 3, -11)]))
chamfer2.Size = 1.5
body29 = doc.addObject("PartDesign::Body", "Body028")
doc.recompute()

body28.Placement = App.Placement(V(0, 31, 15), App.Rotation(V(0, 0, 1), 0))
boolean25 = body29.newObject("PartDesign::Boolean", "Boolean024")
boolean25.Type = "Fuse"
boolean25.addObjects([body28])
body30 = doc.addObject("PartDesign::Body", "Body029")

# Sketch on XY plane
sketch22 = body30.newObject("Sketcher::SketchObject", "Sketch021")
sketch22.AttachmentSupport = (doc.getObject("XY_Plane029"), [""])
sketch22.MapMode = "FlatFace"
sketch22.AttachmentOffset = App.Placement(V(0, 0, -15), App.Rotation())
sketch22.addGeometry(Part.Circle(V(3, 3, 0), V(0, 0, 1), 3), False)
sketch22.addConstraint(Sketcher.Constraint("Diameter", 0, 6.0))
sketch22.addConstraint(Sketcher.Constraint("DistanceX", -1, 1, 0, 3, 3.0))
sketch22.addConstraint(Sketcher.Constraint("DistanceY", -1, 1, 0, 3, 3.0))
pad22 = body30.newObject("PartDesign::Pad", "Pad021")
pad22.Profile = sketch22
pad22.Length = 4
doc.recompute()

chamfer3 = body30.newObject("PartDesign::Chamfer", "Chamfer002")
chamfer3.Base = (pad22, edges_at(pad22, [(0, 3, -11)]))
chamfer3.Size = 1.5
body31 = doc.addObject("PartDesign::Body", "Body030")
doc.recompute()

body30.Placement = App.Placement(V(0, 0, 15), App.Rotation(V(0, 0, 1), 0))
boolean26 = body31.newObject("PartDesign::Boolean", "Boolean025")
boolean26.Type = "Fuse"
boolean26.addObjects([body30])
body32 = doc.addObject("PartDesign::Body", "Body031")

# Sketch on XY plane
sketch23 = body32.newObject("Sketcher::SketchObject", "Sketch022")
sketch23.AttachmentSupport = (doc.getObject("XY_Plane031"), [""])
sketch23.MapMode = "FlatFace"
sketch23.AttachmentOffset = App.Placement(V(0, 0, 15), App.Rotation())
sketch23.addGeometry(Part.LineSegment(V(2, 36, 0), V(2, 2, 0)), False)
sketch23.addGeometry(Part.LineSegment(V(2, 2, 0), V(35, 2, 0)), False)
sketch23.addGeometry(Part.LineSegment(V(35, 2, 0), V(35, 36, 0)), False)
sketch23.addGeometry(Part.LineSegment(V(35, 36, 0), V(2, 36, 0)), False)
sketch23.addConstraint(Sketcher.Constraint("Coincident", 0, 2, 1, 1))
sketch23.addConstraint(Sketcher.Constraint("Coincident", 1, 2, 2, 1))
sketch23.addConstraint(Sketcher.Constraint("Coincident", 2, 2, 3, 1))
sketch23.addConstraint(Sketcher.Constraint("Coincident", 3, 2, 0, 1))
sketch23.addConstraint(Sketcher.Constraint("Vertical", 0))
sketch23.addConstraint(Sketcher.Constraint("Horizontal", 1))
sketch23.addConstraint(Sketcher.Constraint("Vertical", 2))
sketch23.addConstraint(Sketcher.Constraint("Horizontal", 3))
sketch23.addConstraint(Sketcher.Constraint("DistanceX", 1, 1, 1, 2, 33.0))
sketch23.addConstraint(Sketcher.Constraint("DistanceY", 0, 2, 0, 1, 34.0))
sketch23.addConstraint(Sketcher.Constraint("DistanceX", -1, 1, 0, 2, 2.0))
sketch23.addConstraint(Sketcher.Constraint("DistanceY", -1, 1, 0, 2, 1.5))
pad23 = body32.newObject("PartDesign::Pad", "Pad022")
pad23.Profile = sketch23
pad23.Length = 11
body33 = doc.addObject("PartDesign::Body", "Body032")

# Sketch on XY plane
sketch24 = body33.newObject("Sketcher::SketchObject", "Sketch023")
sketch24.AttachmentSupport = (doc.getObject("XY_Plane032"), [""])
sketch24.MapMode = "FlatFace"
sketch24.addGeometry(Part.LineSegment(V(2, 36, 0), V(2, 2, 0)), False)
sketch24.addGeometry(Part.LineSegment(V(2, 2, 0), V(57, 2, 0)), False)
sketch24.addGeometry(Part.LineSegment(V(57, 2, 0), V(57, 36, 0)), False)
sketch24.addGeometry(Part.LineSegment(V(57, 36, 0), V(2, 36, 0)), False)
sketch24.addConstraint(Sketcher.Constraint("Coincident", 0, 2, 1, 1))
sketch24.addConstraint(Sketcher.Constraint("Coincident", 1, 2, 2, 1))
sketch24.addConstraint(Sketcher.Constraint("Coincident", 2, 2, 3, 1))
sketch24.addConstraint(Sketcher.Constraint("Coincident", 3, 2, 0, 1))
sketch24.addConstraint(Sketcher.Constraint("Vertical", 0))
sketch24.addConstraint(Sketcher.Constraint("Horizontal", 1))
sketch24.addConstraint(Sketcher.Constraint("Vertical", 2))
sketch24.addConstraint(Sketcher.Constraint("Horizontal", 3))
sketch24.addConstraint(Sketcher.Constraint("DistanceX", 1, 1, 1, 2, 55.0))
sketch24.addConstraint(Sketcher.Constraint("DistanceY", 0, 2, 0, 1, 34.0))
sketch24.addConstraint(Sketcher.Constraint("DistanceX", -1, 1, 0, 2, 2.0))
sketch24.addConstraint(Sketcher.Constraint("DistanceY", -1, 1, 0, 2, 1.5))
pad24 = body33.newObject("PartDesign::Pad", "Pad023")
pad24.Profile = sketch24
pad24.Length = 21
doc.recompute()

boolean27 = body33.newObject("PartDesign::Boolean", "Boolean026")
boolean27.Type = "Fuse"
boolean27.addObjects([body32])
body34 = doc.addObject("PartDesign::Body", "Body033")

# Sketch on XY plane
sketch25 = body34.newObject("Sketcher::SketchObject", "Sketch024")
sketch25.AttachmentSupport = (doc.getObject("XY_Plane033"), [""])
sketch25.MapMode = "FlatFace"
sketch25.addGeometry(Part.LineSegment(V(0, 38, 0), V(0, 0, 0)), False)
sketch25.addGeometry(Part.LineSegment(V(0, 0, 0), V(60, 0, 0)), False)
sketch25.addGeometry(Part.LineSegment(V(60, 0, 0), V(60, 38, 0)), False)
sketch25.addGeometry(Part.LineSegment(V(60, 38, 0), V(0, 38, 0)), False)
sketch25.addConstraint(Sketcher.Constraint("Coincident", 0, 2, 1, 1))
sketch25.addConstraint(Sketcher.Constraint("Coincident", 1, 2, 2, 1))
sketch25.addConstraint(Sketcher.Constraint("Coincident", 2, 2, 3, 1))
sketch25.addConstraint(Sketcher.Constraint("Coincident", 3, 2, 0, 1))
sketch25.addConstraint(Sketcher.Constraint("Vertical", 0))
sketch25.addConstraint(Sketcher.Constraint("Horizontal", 1))
sketch25.addConstraint(Sketcher.Constraint("Vertical", 2))
sketch25.addConstraint(Sketcher.Constraint("Horizontal", 3))
sketch25.addConstraint(Sketcher.Constraint("DistanceX", 1, 1, 1, 2, 60.0))
sketch25.addConstraint(Sketcher.Constraint("DistanceY", 0, 2, 0, 1, 38.0))
sketch25.addConstraint(Sketcher.Constraint("DistanceX", 0, 2, -1, 1, 0.5))
sketch25.addConstraint(Sketcher.Constraint("DistanceY", 0, 2, -1, 1, 0.5))
pad25 = body34.newObject("PartDesign::Pad", "Pad024")
pad25.Profile = sketch25
pad25.Length = 25
doc.recompute()

boolean28 = body34.newObject("PartDesign::Boolean", "Boolean027")
boolean28.Type = "Cut"
boolean28.addObjects([body33])
doc.recompute()

fillet3 = body34.newObject("PartDesign::Fillet", "Fillet002")
fillet3.Base = (boolean28, edges_at(boolean28, [
    (-0.5, -0.5, 12.5),
    (-0.5, 37.5, 12.5),
    (59.5, -0.5, 12.5),
    (59.5, 37.5, 12.5),
]))
fillet3.Radius = 2
body35 = doc.addObject("PartDesign::Body", "Body034")

# Sketch on XY plane
sketch26 = body35.newObject("Sketcher::SketchObject", "Sketch025")
sketch26.AttachmentSupport = (doc.getObject("XY_Plane034"), [""])
sketch26.MapMode = "FlatFace"
sketch26.AttachmentOffset = App.Placement(V(0, 0, -15), App.Rotation())
sketch26.addGeometry(Part.Circle(V(3, 3, 0), V(0, 0, 1), 3), False)
sketch26.addConstraint(Sketcher.Constraint("Diameter", 0, 6.0))
sketch26.addConstraint(Sketcher.Constraint("DistanceX", -1, 1, 0, 3, 3.0))
sketch26.addConstraint(Sketcher.Constraint("DistanceY", -1, 1, 0, 3, 3.0))
pad26 = body35.newObject("PartDesign::Pad", "Pad025")
pad26.Profile = sketch26
pad26.Length = 4
doc.recompute()

chamfer4 = body35.newObject("PartDesign::Chamfer", "Chamfer003")
chamfer4.Base = (pad26, edges_at(pad26, [(0, 3, -11)]))
chamfer4.Size = 1.5
body36 = doc.addObject("PartDesign::Body", "Body035")
body36.AllowCompound = True
doc.recompute()

body35.Placement = App.Placement(V(53, 31, 15), App.Rotation(V(0, 0, 1), 0))
boolean29 = body36.newObject("PartDesign::Boolean", "Boolean028")
boolean29.Type = "Fuse"
boolean29.addObjects([body35])
doc.recompute()

boolean30 = body36.newObject("PartDesign::Boolean", "Boolean029")
boolean30.Type = "Fuse"
boolean30.addObjects([body27])
doc.recompute()

boolean31 = body36.newObject("PartDesign::Boolean", "Boolean030")
boolean31.Type = "Fuse"
boolean31.addObjects([body29])
doc.recompute()

boolean32 = body36.newObject("PartDesign::Boolean", "Boolean031")
boolean32.Type = "Fuse"
boolean32.addObjects([body31])
doc.recompute()

boolean33 = body36.newObject("PartDesign::Boolean", "Boolean032")
boolean33.Type = "Fuse"
boolean33.addObjects([body34])
doc.recompute()

boolean34 = body36.newObject("PartDesign::Boolean", "Boolean033")
boolean34.Type = "Cut"
boolean34.addObjects([body25])

doc.recompute()
